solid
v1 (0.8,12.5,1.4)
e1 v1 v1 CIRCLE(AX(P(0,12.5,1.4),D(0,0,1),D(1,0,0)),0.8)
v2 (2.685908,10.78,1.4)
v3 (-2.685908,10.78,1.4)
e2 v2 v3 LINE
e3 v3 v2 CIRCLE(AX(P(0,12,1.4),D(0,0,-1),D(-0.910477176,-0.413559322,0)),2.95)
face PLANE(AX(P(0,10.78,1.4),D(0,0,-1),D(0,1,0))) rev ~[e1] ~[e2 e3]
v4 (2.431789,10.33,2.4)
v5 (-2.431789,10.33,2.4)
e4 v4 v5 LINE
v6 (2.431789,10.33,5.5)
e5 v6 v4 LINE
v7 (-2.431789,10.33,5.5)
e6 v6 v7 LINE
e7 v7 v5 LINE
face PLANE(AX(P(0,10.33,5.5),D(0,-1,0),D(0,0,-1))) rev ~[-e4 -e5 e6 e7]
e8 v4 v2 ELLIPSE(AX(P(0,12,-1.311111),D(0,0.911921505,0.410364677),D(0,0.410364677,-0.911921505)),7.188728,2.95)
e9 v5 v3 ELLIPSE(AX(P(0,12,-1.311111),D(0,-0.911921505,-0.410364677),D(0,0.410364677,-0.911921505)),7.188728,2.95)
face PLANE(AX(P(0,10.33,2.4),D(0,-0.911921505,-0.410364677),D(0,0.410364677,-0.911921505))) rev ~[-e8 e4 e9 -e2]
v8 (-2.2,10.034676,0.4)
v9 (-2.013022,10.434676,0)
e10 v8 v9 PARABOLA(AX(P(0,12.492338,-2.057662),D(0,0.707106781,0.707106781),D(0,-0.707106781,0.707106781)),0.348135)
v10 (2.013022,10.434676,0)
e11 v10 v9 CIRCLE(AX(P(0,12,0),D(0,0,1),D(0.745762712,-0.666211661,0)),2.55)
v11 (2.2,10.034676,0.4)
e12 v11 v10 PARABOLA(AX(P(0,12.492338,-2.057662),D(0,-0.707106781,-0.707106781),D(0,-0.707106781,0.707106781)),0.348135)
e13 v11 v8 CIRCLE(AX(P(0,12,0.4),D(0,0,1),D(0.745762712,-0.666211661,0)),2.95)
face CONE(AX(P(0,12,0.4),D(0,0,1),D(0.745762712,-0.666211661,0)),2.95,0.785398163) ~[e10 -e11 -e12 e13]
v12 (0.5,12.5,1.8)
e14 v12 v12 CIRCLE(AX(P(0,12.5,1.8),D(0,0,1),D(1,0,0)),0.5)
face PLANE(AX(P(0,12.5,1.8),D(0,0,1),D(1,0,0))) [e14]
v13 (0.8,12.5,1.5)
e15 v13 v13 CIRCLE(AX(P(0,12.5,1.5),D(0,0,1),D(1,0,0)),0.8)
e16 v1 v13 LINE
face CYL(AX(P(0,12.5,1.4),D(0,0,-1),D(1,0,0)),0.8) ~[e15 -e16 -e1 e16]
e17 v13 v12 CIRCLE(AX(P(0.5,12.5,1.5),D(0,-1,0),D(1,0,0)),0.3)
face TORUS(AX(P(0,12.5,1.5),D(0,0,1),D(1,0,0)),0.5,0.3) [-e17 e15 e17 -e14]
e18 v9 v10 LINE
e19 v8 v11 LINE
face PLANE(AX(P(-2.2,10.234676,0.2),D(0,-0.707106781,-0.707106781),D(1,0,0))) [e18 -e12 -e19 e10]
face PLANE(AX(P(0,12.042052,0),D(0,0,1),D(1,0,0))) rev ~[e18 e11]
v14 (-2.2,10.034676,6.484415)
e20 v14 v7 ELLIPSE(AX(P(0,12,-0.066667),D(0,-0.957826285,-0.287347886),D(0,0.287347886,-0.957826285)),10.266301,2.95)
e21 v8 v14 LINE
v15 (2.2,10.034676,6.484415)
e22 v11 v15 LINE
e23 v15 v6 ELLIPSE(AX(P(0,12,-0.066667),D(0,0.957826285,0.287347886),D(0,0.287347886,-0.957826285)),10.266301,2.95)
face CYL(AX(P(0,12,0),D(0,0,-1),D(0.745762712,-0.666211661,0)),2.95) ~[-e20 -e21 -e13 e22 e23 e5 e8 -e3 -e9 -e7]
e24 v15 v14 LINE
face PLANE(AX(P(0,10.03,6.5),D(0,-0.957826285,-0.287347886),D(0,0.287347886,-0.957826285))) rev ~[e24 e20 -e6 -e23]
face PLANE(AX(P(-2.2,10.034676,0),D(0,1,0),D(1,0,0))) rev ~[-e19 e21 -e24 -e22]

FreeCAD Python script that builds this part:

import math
import FreeCAD as App
import Part
import Sketcher


def edges_at(feature, points):
    """Names of the edges that pass closest to the given points."""
    edges = feature.Shape.Edges
    near = lambda p: min(range(len(edges)), key=lambda i: edges[i].distToShape(Part.Vertex(*p))[0])
    return sorted({f"Edge{near(p) + 1}" for p in points})


def add_polygon(sketch, points):
    """Adds a closed chain of lines whose ends are joined by coincident constraints."""
    first, n = sketch.GeometryCount, len(points)
    for a, b in zip(points, points[1:] + points[:1]):
        sketch.addGeometry(Part.LineSegment(App.Vector(*a, 0), App.Vector(*b, 0)), False)
    for i in range(n):
        sketch.addConstraint(Sketcher.Constraint("Coincident", first + i, 2, first + (i + 1) % n, 1))

doc = App.newDocument("Part")
params = doc.addObject("Spreadsheet::Sheet", "Params")
for row, (alias, value) in enumerate([
    ("sketch1_radius", "2.95 mm"),
    ("sketch1_width", "4.4 mm"),
    ("pad1_length", "6.5 mm"),
    ("sketch2_height", "3.1 mm"),
    ("sketch2_height2", "5.1 mm"),
    ("sketch2_width", "5.22 mm"),
    ("sketch2_width2", "5.97 mm"),
    ("sketch3_diameter", "1.6 mm"),
    ("pad2_length", "0.4 mm"),
    ("fillet_radius", "0.3 mm"),
    ("chamfer_size", "0.4 mm"),
], start=1):
    params.set(f"A{row}", alias)
    params.set(f"B{row}", "=" + value)
    params.setAlias(f"B{row}", alias)

body = doc.addObject("PartDesign::Body", "Body")

# Sketch on XY plane
sketch1 = body.newObject("Sketcher::SketchObject", "Sketch")
sketch1.AttachmentSupport = (doc.getObject("XY_Plane"), [""])
sketch1.MapMode = "FlatFace"
sketch1.addGeometry(Part.ArcOfCircle(Part.Circle(App.Vector(0, 0, 0), App.Vector(0, 0, 1), 3), math.radians(-42), math.radians(222)), False)
sketch1.addGeometry(Part.LineSegment(App.Vector(-2.2, -2, 0), App.Vector(2.2, -2, 0)), False)
sketch1.addConstraint(Sketcher.Constraint("Coincident", 0, 1, 1, 2))
sketch1.addConstraint(Sketcher.Constraint("Coincident", 1, 1, 0, 2))
sketch1.addConstraint(Sketcher.Constraint("Horizontal", 1))
sketch1.addConstraint(Sketcher.Constraint("Coincident", 0, 3, -1, 1))
sketch1.addConstraint(Sketcher.Constraint("Radius", 0, 2.95))
sketch1.addConstraint(Sketcher.Constraint("DistanceX", 1, 1, 1, 2, 4.4))
sketch1.setExpression("Constraints[4]", "Params.sketch1_radius")
sketch1.setExpression("Constraints[5]", "Params.sketch1_width")
pad1 = body.newObject("PartDesign::Pad", "Pad")
pad1.Profile = sketch1
pad1.setExpression("Length", "Params.pad1_length")

# Sketch on YZ plane
sketch2 = body.newObject("Sketcher::SketchObject", "Sketch001")
sketch2.AttachmentSupport = (doc.getObject("YZ_Plane"), [""])
sketch2.MapMode = "FlatFace"
add_polygon(sketch2, [(-2, 6.5), (-1.7, 5.5), (-1.7, 2.4), (-1.2, 1.4), (4, 1.4), (4, 6.5)])  # lines 0-5
sketch2.addConstraint(Sketcher.Constraint("Vertical", 1))
sketch2.addConstraint(Sketcher.Constraint("Horizontal", 3))
sketch2.addConstraint(Sketcher.Constraint("Vertical", 4))
sketch2.addConstraint(Sketcher.Constraint("Horizontal", 5))
sketch2.addConstraint(Sketcher.Constraint("DistanceY", 1, 2, 1, 1, 3.1))
sketch2.addConstraint(Sketcher.Constraint("DistanceY", 4, 1, 4, 2, 5.1))
sketch2.addConstraint(Sketcher.Constraint("DistanceX", -1, 1, 3, 2, 4.0))
sketch2.addConstraint(Sketcher.Constraint("DistanceY", 2, 2, 1, 2, 1.0))
sketch2.addConstraint(Sketcher.Constraint("DistanceX", 3, 1, 3, 2, 5.22))
sketch2.addConstraint(Sketcher.Constraint("DistanceX", 5, 2, 5, 1, 5.97))
sketch2.addConstraint(Sketcher.Constraint("DistanceY", -1, 1, 0, 2, 5.5))
sketch2.addConstraint(Sketcher.Constraint("DistanceX", 5, 2, 0, 2, 0.3))
sketch2.setExpression("Constraints[10]", "Params.sketch2_height")
sketch2.setExpression("Constraints[11]", "Params.sketch2_height2")
sketch2.setExpression("Constraints[14]", "Params.sketch2_width")
sketch2.setExpression("Constraints[15]", "Params.sketch2_width2")
pocket1 = body.newObject("PartDesign::Pocket", "Pocket")
pocket1.Profile = sketch2
pocket1.Type = "ThroughAll"
pocket1.Midplane = True

# Sketch on XY plane
sketch3 = body.newObject("Sketcher::SketchObject", "Sketch002")
sketch3.AttachmentSupport = (doc.getObject("XY_Plane"), [""])
sketch3.MapMode = "FlatFace"
sketch3.AttachmentOffset = App.Placement(App.Vector(0, 0, 1.4), App.Rotation())
sketch3.addGeometry(Part.Circle(App.Vector(0, 0.5, 0), App.Vector(0, 0, 1), 0.8), False)
sketch3.addConstraint(Sketcher.Constraint("PointOnObject", 0, 3, -2))
sketch3.addConstraint(Sketcher.Constraint("Diameter", 0, 1.6))
sketch3.addConstraint(Sketcher.Constraint("DistanceY", -1, 1, 0, 3, 0.5))
sketch3.setExpression("Constraints[1]", "Params.sketch3_diameter")
pad2 = body.newObject("PartDesign::Pad", "Pad001")
pad2.Profile = sketch3
pad2.setExpression("Length", "Params.pad2_length")
doc.recompute()

fillet = body.newObject("PartDesign::Fillet", "Fillet")
fillet.Base = (pad2, edges_at(pad2, [(-0.8, 0.5, 1.8)]))
fillet.setExpression("Radius", "Params.fillet_radius")
doc.recompute()

chamfer = body.newObject("PartDesign::Chamfer", "Chamfer")
chamfer.Base = (fillet, edges_at(fillet, [(0, 2.95, 0), (0, -1.965, 0)]))
chamfer.setExpression("Size", "Params.chamfer_size")
body2 = doc.addObject("PartDesign::Body", "Body001")
doc.recompute()

body.Placement = App.Placement(App.Vector(0, 12, 0), App.Rotation(App.Vector(0, 0, 1), 0))
boolean = body2.newObject("PartDesign::Boolean", "Boolean")
boolean.Type = "Fuse"
boolean.addObjects([body])

doc.recompute()
